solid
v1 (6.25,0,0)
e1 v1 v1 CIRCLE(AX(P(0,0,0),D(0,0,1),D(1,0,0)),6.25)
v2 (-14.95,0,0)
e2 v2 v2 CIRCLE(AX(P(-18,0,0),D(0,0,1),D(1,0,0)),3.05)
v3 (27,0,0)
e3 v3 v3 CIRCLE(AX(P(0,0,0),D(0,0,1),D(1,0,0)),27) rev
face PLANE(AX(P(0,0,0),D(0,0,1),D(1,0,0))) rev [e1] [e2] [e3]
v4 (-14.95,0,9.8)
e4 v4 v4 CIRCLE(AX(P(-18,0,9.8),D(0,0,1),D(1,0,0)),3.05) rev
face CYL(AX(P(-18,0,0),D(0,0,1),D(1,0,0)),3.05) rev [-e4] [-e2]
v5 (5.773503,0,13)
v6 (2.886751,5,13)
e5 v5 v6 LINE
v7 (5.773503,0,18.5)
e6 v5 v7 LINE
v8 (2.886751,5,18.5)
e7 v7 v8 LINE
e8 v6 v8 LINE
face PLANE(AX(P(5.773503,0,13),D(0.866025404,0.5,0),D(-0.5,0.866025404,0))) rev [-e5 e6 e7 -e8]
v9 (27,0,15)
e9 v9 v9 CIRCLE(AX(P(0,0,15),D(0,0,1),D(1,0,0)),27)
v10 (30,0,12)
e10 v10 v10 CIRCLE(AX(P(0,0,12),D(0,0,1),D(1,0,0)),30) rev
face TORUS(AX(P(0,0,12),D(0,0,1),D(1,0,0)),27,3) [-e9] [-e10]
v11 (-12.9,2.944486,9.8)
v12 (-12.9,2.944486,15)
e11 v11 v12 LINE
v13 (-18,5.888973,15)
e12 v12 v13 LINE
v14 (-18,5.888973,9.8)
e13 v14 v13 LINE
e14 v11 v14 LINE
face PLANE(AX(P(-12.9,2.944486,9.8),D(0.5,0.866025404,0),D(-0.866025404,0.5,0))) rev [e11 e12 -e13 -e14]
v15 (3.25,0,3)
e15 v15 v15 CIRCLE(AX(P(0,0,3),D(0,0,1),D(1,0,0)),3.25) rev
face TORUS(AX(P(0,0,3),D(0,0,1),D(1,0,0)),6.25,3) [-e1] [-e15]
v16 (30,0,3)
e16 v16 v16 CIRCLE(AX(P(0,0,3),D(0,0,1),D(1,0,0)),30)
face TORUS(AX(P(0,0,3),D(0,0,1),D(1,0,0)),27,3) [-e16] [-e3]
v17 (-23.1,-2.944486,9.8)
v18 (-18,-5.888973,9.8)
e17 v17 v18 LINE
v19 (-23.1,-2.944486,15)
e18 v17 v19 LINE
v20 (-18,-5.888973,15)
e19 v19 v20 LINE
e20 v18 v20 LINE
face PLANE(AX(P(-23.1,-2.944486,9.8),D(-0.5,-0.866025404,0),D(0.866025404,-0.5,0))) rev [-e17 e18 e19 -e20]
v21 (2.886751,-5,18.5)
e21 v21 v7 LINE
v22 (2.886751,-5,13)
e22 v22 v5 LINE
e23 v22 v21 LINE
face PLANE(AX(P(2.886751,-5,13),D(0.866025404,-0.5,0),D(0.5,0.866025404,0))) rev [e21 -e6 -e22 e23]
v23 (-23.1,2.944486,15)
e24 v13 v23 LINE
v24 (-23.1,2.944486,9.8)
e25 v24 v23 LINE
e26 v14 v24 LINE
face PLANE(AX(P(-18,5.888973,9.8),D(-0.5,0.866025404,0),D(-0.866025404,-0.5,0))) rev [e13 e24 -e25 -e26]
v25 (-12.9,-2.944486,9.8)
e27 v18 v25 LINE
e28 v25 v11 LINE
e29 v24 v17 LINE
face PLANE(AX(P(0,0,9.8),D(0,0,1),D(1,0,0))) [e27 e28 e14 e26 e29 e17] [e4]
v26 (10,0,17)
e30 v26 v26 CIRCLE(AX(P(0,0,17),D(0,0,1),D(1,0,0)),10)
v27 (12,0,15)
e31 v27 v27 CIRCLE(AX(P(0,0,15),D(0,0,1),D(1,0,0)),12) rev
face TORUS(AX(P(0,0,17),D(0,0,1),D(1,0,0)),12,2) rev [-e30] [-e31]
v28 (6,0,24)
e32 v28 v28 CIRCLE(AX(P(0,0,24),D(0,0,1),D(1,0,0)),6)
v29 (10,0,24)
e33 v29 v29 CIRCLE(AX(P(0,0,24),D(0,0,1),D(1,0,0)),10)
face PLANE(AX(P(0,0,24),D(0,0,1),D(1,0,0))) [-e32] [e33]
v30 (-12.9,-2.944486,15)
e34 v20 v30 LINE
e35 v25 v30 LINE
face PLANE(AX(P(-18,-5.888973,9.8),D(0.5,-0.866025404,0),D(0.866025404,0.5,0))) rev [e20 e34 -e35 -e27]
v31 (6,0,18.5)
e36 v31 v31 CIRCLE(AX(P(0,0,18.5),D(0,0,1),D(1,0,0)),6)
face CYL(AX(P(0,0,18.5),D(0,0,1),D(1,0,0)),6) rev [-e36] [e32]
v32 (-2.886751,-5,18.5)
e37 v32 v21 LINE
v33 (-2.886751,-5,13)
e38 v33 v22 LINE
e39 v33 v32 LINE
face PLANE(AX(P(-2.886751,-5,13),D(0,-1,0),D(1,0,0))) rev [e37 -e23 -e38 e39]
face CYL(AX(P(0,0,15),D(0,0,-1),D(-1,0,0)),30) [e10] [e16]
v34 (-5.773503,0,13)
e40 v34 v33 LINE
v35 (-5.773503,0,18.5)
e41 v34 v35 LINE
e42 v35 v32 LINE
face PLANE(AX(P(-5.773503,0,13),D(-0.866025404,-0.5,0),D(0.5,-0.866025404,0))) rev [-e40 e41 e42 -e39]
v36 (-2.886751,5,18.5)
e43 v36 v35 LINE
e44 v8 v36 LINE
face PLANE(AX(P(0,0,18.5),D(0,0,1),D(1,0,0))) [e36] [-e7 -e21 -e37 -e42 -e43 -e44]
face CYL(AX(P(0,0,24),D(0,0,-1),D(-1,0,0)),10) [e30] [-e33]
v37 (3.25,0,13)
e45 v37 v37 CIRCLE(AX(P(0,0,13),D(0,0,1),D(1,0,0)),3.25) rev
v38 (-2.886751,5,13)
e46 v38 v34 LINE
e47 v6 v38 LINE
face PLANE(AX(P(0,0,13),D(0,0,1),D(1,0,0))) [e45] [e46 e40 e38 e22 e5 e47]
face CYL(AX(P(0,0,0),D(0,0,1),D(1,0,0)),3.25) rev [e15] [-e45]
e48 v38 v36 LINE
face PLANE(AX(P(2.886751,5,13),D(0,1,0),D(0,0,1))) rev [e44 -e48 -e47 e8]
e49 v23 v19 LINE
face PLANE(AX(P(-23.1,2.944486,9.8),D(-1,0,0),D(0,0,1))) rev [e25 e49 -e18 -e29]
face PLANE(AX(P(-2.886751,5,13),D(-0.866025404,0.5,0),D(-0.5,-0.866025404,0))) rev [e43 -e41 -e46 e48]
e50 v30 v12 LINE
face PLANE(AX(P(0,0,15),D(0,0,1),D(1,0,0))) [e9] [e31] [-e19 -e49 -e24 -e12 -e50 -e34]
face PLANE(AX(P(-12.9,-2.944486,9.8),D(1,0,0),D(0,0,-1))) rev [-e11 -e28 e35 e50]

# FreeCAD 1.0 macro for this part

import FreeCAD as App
import Part
import Sketcher
Q = App.Units.Quantity


def edges_at(feature, points):
    """Names of the edges that pass closest to the given points."""
    edges = feature.Shape.Edges
    near = lambda p: min(range(len(edges)), key=lambda i: edges[i].distToShape(Part.Vertex(*p))[0])
    return sorted({f"Edge{near(p) + 1}" for p in points})


def add_polygon(sketch, points):
    """Adds a closed chain of lines whose ends are joined by coincident constraints."""
    first, n = sketch.GeometryCount, len(points)
    for a, b in zip(points, points[1:] + points[:1]):
        sketch.addGeometry(Part.LineSegment(App.Vector(*a, 0), App.Vector(*b, 0)), False)
    for i in range(n):
        sketch.addConstraint(Sketcher.Constraint("Coincident", first + i, 2, first + (i + 1) % n, 1))

doc = App.newDocument("Part")
body = doc.addObject("PartDesign::Body", "Body")

# Sketch on XY plane
sketch1 = doc.addObject("Sketcher::SketchObject", "Sketch")
body.addObject(sketch1)
sketch1.AttachmentSupport = (doc.XY_Plane, [""])
sketch1.MapMode = "FlatFace"
sketch1.addGeometry(Part.Circle(App.Vector(0, 0, 0), App.Vector(0, 0, 1), 30), False)
sketch1.addConstraint([
    Sketcher.Constraint("Coincident", 0, 3, -1, 1),
    Sketcher.Constraint("Diameter", 0, Q("60 mm")),
])
pad1 = doc.addObject("PartDesign::Pad", "Pad")
body.addObject(pad1)
pad1.Profile = sketch1
pad1.Length = 15

# Sketch on XY plane
sketch2 = doc.addObject("Sketcher::SketchObject", "Sketch001")
body.addObject(sketch2)
sketch2.AttachmentSupport = (doc.XY_Plane, [""])
sketch2.MapMode = "FlatFace"
sketch2.AttachmentOffset = App.Placement(App.Vector(0, 0, 15), App.Rotation())
sketch2.addGeometry(Part.Circle(App.Vector(0, 0, 0), App.Vector(0, 0, 1), 10), False)
sketch2.addConstraint([
    Sketcher.Constraint("Coincident", 0, 3, -1, 1),
    Sketcher.Constraint("Diameter", 0, Q("20 mm")),
])
pad2 = doc.addObject("PartDesign::Pad", "Pad001")
body.addObject(pad2)
pad2.Profile = sketch2
pad2.Length = 9

# Sketch on XY plane
sketch3 = doc.addObject("Sketcher::SketchObject", "Sketch002")
body.addObject(sketch3)
sketch3.AttachmentSupport = (doc.XY_Plane, [""])
sketch3.MapMode = "FlatFace"
sketch3.AttachmentOffset = App.Placement(App.Vector(0, 0, 24), App.Rotation())
sketch3.addGeometry(Part.Circle(App.Vector(0, 0, 0), App.Vector(0, 0, 1), 3.25), False)
sketch3.addConstraint([
    Sketcher.Constraint("Coincident", 0, 3, -1, 1),
    Sketcher.Constraint("Diameter", 0, Q("6.5 mm")),
])
pocket1 = doc.addObject("PartDesign::Pocket", "Pocket")
body.addObject(pocket1)
pocket1.Profile = sketch3
pocket1.Type = "ThroughAll"
doc.recompute()

fillet = doc.addObject("PartDesign::Fillet", "Fillet")
body.addObject(fillet)
fillet.Base = (pocket1, edges_at(pocket1, [(-3.25, 0, 0), (-30, 0, 0), (-30, 0, 15)]))
fillet.Radius = 3

# Sketch on XY plane
sketch4 = doc.addObject("Sketcher::SketchObject", "Sketch003")
body.addObject(sketch4)
sketch4.AttachmentSupport = (doc.XY_Plane, [""])
sketch4.MapMode = "FlatFace"
sketch4.AttachmentOffset = App.Placement(App.Vector(0, 0, 15), App.Rotation())
sketch4.addGeometry(Part.Circle(App.Vector(-18, 0, 0), App.Vector(0, 0, 1), 3.05), False)
sketch4.addConstraint([
    Sketcher.Constraint("PointOnObject", 0, 3, -1),
    Sketcher.Constraint("Diameter", 0, Q("6.1 mm")),
    Sketcher.Constraint("DistanceX", 0, 3, -1, 1, Q("18 mm")),
])
pocket2 = doc.addObject("PartDesign::Pocket", "Pocket001")
body.addObject(pocket2)
pocket2.Profile = sketch4
pocket2.Type = "ThroughAll"

# Sketch on XY plane
sketch5 = doc.addObject("Sketcher::SketchObject", "Sketch004")
body.addObject(sketch5)
sketch5.AttachmentSupport = (doc.XY_Plane, [""])
sketch5.MapMode = "FlatFace"
sketch5.AttachmentOffset = App.Placement(App.Vector(0, 0, 15), App.Rotation())
add_polygon(sketch5, [(-23.1, 2.944486), (-23.1, -2.944486), (-18, -5.888973), (-12.9, -2.944486), (-12.9, 2.944486), (-18, 5.888973)])  # lines 0-5
sketch5.addConstraint([
    Sketcher.Constraint("Vertical", 0),
    Sketcher.Constraint("Vertical", 3),
    Sketcher.Constraint("Symmetric", 1, 2, 4, 2, -1),
    Sketcher.Constraint("Parallel", 1, 4),
    Sketcher.Constraint("Parallel", 2, 5),
    Sketcher.Constraint("Horizontal", 0, 2, 2, 2),
    Sketcher.Constraint("Horizontal", 3, 2, 5, 2),
    Sketcher.Constraint("Angle", 1, Q("-30 deg")),
    Sketcher.Constraint("DistanceX", 1, 2, -1, 1, Q("18 mm")),
    Sketcher.Constraint("DistanceX", 0, 2, -1, 1, Q("23.1 mm")),
    Sketcher.Constraint("DistanceY", 0, 2, 0, 1, Q("5.888973 mm")),
])
pocket3 = doc.addObject("PartDesign::Pocket", "Pocket002")
body.addObject(pocket3)
pocket3.Profile = sketch5
pocket3.Length = 5.2

# Sketch on XY plane
sketch6 = doc.addObject("Sketcher::SketchObject", "Sketch005")
body.addObject(sketch6)
sketch6.AttachmentSupport = (doc.XY_Plane, [""])
sketch6.MapMode = "FlatFace"
sketch6.AttachmentOffset = App.Placement(App.Vector(0, 0, 24), App.Rotation())
sketch6.addGeometry(Part.Circle(App.Vector(0, 0, 0), App.Vector(0, 0, 1), 6), False)
sketch6.addConstraint([
    Sketcher.Constraint("Coincident", 0, 3, -1, 1),
    Sketcher.Constraint("Diameter", 0, Q("12 mm")),
])
pocket4 = doc.addObject("PartDesign::Pocket", "Pocket003")
body.addObject(pocket4)
pocket4.Profile = sketch6
pocket4.Length = 5.5

# Sketch on XY plane
sketch7 = doc.addObject("Sketcher::SketchObject", "Sketch006")
body.addObject(sketch7)
sketch7.AttachmentSupport = (doc.XY_Plane, [""])
sketch7.MapMode = "FlatFace"
sketch7.AttachmentOffset = App.Placement(App.Vector(0, 0, 18.5), App.Rotation())
add_polygon(sketch7, [(5.773503, 0), (2.886751, 5), (-2.886751, 5), (-5.773503, 0), (-2.886751, -5), (2.886751, -5)])  # lines 0-5
sketch7.addConstraint([
    Sketcher.Constraint("Horizontal", 1),
    Sketcher.Constraint("Horizontal", 4),
    Sketcher.Constraint("Symmetric", 0, 2, 3, 2, -1, 1),
    Sketcher.Constraint("Symmetric", 2, 2, 5, 2, -1, 1),
    Sketcher.Constraint("PointOnObject", 2, 2, -1),
    Sketcher.Constraint("Parallel", 2, 5),
    Sketcher.Constraint("Vertical", 1, 2, 3, 2),
    Sketcher.Constraint("Angle", 0, Q("120 deg")),
    Sketcher.Constraint("DistanceY", -1, 1, 0, 2, Q("5 mm")),
    Sketcher.Constraint("DistanceX", 1, 2, 1, 1, Q("5.773503 mm")),
])
pocket5 = doc.addObject("PartDesign::Pocket", "Pocket004")
body.addObject(pocket5)
pocket5.Profile = sketch7
pocket5.Length = 5.5
doc.recompute()

fillet2 = doc.addObject("PartDesign::Fillet", "Fillet001")
body.addObject(fillet2)
fillet2.Base = (pocket5, edges_at(pocket5, [(-10, 0, 15)]))
fillet2.Radius = 2

doc.recompute()
